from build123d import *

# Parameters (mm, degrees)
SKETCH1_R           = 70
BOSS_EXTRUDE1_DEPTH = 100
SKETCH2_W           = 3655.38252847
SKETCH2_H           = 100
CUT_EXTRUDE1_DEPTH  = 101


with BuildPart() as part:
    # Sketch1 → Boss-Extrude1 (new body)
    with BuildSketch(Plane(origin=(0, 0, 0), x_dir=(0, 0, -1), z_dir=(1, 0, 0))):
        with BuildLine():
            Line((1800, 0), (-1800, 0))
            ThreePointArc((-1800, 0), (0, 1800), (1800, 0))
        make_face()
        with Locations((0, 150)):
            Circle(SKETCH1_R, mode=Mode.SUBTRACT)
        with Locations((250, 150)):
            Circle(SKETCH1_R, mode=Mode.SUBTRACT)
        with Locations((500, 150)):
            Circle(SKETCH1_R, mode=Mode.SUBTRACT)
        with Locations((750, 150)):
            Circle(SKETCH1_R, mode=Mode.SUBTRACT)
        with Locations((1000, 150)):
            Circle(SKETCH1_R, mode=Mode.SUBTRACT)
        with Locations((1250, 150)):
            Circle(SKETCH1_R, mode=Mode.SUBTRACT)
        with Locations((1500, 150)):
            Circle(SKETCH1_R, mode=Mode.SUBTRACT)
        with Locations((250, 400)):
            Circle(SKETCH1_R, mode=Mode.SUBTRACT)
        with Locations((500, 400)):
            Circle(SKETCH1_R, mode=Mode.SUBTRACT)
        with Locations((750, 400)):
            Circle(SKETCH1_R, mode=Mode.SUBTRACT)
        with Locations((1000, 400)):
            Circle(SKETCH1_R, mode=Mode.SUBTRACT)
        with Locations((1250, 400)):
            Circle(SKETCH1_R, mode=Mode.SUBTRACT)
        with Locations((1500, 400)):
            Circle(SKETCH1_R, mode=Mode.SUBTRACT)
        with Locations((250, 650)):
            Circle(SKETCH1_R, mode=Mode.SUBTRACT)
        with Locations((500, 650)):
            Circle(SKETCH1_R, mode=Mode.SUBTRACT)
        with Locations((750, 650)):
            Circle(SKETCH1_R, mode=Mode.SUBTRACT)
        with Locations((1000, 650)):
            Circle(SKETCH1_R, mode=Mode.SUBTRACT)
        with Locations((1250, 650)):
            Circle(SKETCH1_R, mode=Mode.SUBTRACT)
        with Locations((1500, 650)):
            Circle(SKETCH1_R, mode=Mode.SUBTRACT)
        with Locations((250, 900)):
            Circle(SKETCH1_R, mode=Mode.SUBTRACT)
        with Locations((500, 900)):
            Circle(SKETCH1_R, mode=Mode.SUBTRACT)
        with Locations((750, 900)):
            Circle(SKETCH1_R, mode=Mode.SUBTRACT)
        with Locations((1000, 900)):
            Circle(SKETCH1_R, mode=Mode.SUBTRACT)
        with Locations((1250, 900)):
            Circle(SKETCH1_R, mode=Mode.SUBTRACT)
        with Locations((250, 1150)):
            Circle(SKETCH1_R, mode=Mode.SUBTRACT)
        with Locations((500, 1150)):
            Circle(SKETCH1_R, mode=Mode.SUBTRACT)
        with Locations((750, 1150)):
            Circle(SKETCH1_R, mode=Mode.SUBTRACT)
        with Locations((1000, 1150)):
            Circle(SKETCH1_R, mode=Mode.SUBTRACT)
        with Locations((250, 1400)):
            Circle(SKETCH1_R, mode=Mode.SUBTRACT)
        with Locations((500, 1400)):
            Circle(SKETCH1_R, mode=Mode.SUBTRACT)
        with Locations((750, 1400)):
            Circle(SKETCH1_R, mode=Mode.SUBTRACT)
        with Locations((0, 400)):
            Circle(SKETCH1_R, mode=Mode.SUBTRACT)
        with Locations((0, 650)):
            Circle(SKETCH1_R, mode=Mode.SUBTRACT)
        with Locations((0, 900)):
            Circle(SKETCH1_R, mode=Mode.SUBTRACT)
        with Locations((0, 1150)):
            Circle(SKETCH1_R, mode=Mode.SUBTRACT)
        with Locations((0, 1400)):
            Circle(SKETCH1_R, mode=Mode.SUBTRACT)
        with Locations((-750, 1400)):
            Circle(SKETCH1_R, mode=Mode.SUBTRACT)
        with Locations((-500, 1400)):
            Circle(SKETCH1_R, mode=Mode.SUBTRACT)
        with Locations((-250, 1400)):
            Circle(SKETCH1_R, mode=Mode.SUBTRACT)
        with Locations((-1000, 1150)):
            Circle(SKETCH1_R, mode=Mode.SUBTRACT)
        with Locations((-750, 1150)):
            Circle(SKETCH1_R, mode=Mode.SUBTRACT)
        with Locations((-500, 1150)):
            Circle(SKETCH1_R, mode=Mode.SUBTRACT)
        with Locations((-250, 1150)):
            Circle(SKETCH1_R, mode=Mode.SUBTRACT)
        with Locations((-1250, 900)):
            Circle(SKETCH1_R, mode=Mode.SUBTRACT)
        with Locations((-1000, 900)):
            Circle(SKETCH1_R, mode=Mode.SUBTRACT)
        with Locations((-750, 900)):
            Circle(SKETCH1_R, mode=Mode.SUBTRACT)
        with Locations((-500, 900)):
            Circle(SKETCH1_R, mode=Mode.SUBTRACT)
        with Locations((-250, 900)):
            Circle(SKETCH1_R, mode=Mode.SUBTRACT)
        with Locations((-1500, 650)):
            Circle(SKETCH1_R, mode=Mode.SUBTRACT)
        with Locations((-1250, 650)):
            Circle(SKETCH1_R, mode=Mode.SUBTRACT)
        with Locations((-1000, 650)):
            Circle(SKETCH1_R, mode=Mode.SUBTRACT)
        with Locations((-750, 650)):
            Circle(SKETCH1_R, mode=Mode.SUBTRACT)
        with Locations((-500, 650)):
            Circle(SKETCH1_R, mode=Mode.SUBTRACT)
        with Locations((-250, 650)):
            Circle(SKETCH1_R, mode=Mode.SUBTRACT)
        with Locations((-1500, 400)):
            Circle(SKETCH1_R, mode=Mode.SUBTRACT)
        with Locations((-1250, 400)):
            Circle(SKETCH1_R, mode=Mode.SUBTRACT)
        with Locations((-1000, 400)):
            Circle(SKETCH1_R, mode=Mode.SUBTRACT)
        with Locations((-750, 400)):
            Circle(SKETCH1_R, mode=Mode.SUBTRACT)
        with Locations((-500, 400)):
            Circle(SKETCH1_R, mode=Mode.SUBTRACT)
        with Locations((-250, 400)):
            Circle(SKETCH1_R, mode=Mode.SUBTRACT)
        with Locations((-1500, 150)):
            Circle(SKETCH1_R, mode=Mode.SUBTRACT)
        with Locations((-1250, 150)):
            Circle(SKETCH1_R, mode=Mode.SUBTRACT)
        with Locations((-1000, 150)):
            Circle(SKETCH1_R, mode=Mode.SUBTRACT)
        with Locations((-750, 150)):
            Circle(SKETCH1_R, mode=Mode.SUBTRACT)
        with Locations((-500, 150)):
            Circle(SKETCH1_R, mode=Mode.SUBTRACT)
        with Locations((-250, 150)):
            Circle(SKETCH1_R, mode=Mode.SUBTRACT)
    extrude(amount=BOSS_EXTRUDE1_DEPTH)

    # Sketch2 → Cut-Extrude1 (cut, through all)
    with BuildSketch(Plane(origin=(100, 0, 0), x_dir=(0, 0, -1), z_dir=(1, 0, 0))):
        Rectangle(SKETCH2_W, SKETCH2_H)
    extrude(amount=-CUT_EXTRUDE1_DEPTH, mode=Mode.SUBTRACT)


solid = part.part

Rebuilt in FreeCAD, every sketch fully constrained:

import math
import FreeCAD as App
import Part
import Sketcher
Q = App.Units.Quantity


def add_polygon(sketch, points):
    """Adds a closed chain of lines whose ends are joined by coincident constraints."""
    first, n = sketch.GeometryCount, len(points)
    for a, b in zip(points, points[1:] + points[:1]):
        sketch.addGeometry(Part.LineSegment(App.Vector(*a, 0), App.Vector(*b, 0)), False)
    for i in range(n):
        sketch.addConstraint(Sketcher.Constraint("Coincident", first + i, 2, first + (i + 1) % n, 1))

doc = App.newDocument("Part")
body = doc.addObject("PartDesign::Body", "Body")

sketch1 = body.newObject("Sketcher::SketchObject", "Sketch")
sketch1.AttachmentSupport = (doc.getObject("YZ_Plane"), [""])
sketch1.MapMode = "FlatFace"
sketch1.addGeometry(Part.LineSegment(App.Vector(0, 1800, 0), App.Vector(0, -1800, 0)), False)
sketch1.addGeometry(Part.ArcOfCircle(Part.Circle(App.Vector(0, 0, 0), App.Vector(0, 0, 1), 1800), math.radians(-90), math.radians(90)), False)
sketch1.addGeometry(Part.Circle(App.Vector(150, -1500, 0), App.Vector(0, 0, 1), 70), False)
sketch1.addGeometry(Part.Circle(App.Vector(150, -1250, 0), App.Vector(0, 0, 1), 70), False)
sketch1.addGeometry(Part.Circle(App.Vector(150, -1000, 0), App.Vector(0, 0, 1), 70), False)
sketch1.addGeometry(Part.Circle(App.Vector(400, -1500, 0), App.Vector(0, 0, 1), 70), False)
sketch1.addGeometry(Part.Circle(App.Vector(400, -1250, 0), App.Vector(0, 0, 1), 70), False)
sketch1.addGeometry(Part.Circle(App.Vector(400, -1000, 0), App.Vector(0, 0, 1), 70), False)
sketch1.addGeometry(Part.Circle(App.Vector(150, -750, 0), App.Vector(0, 0, 1), 70), False)
sketch1.addGeometry(Part.Circle(App.Vector(150, -500, 0), App.Vector(0, 0, 1), 70), False)
sketch1.addGeometry(Part.Circle(App.Vector(150, -250, 0), App.Vector(0, 0, 1), 70), False)
sketch1.addGeometry(Part.Circle(App.Vector(400, -750, 0), App.Vector(0, 0, 1), 70), False)
sketch1.addGeometry(Part.Circle(App.Vector(400, -500, 0), App.Vector(0, 0, 1), 70), False)
sketch1.addGeometry(Part.Circle(App.Vector(400, -250, 0), App.Vector(0, 0, 1), 70), False)
sketch1.addGeometry(Part.Circle(App.Vector(650, -1500, 0), App.Vector(0, 0, 1), 70), False)
sketch1.addGeometry(Part.Circle(App.Vector(650, -1250, 0), App.Vector(0, 0, 1), 70), False)
sketch1.addGeometry(Part.Circle(App.Vector(650, -1000, 0), App.Vector(0, 0, 1), 70), False)
sketch1.addGeometry(Part.Circle(App.Vector(650, -750, 0), App.Vector(0, 0, 1), 70), False)
sketch1.addGeometry(Part.Circle(App.Vector(650, -500, 0), App.Vector(0, 0, 1), 70), False)
sketch1.addGeometry(Part.Circle(App.Vector(650, -250, 0), App.Vector(0, 0, 1), 70), False)
sketch1.addGeometry(Part.Circle(App.Vector(150, 0, 0), App.Vector(0, 0, 1), 70), False)
sketch1.addGeometry(Part.Circle(App.Vector(150, 250, 0), App.Vector(0, 0, 1), 70), False)
sketch1.addGeometry(Part.Circle(App.Vector(150, 500, 0), App.Vector(0, 0, 1), 70), False)
sketch1.addGeometry(Part.Circle(App.Vector(150, 750, 0), App.Vector(0, 0, 1), 70), False)
sketch1.addGeometry(Part.Circle(App.Vector(400, 0, 0), App.Vector(0, 0, 1), 70), False)
sketch1.addGeometry(Part.Circle(App.Vector(400, 250, 0), App.Vector(0, 0, 1), 70), False)
sketch1.addGeometry(Part.Circle(App.Vector(400, 500, 0), App.Vector(0, 0, 1), 70), False)
sketch1.addGeometry(Part.Circle(App.Vector(400, 750, 0), App.Vector(0, 0, 1), 70), False)
sketch1.addGeometry(Part.Circle(App.Vector(150, 1000, 0), App.Vector(0, 0, 1), 70), False)
sketch1.addGeometry(Part.Circle(App.Vector(150, 1250, 0), App.Vector(0, 0, 1), 70), False)
sketch1.addGeometry(Part.Circle(App.Vector(150, 1500, 0), App.Vector(0, 0, 1), 70), False)
sketch1.addGeometry(Part.Circle(App.Vector(400, 1000, 0), App.Vector(0, 0, 1), 70), False)
sketch1.addGeometry(Part.Circle(App.Vector(400, 1250, 0), App.Vector(0, 0, 1), 70), False)
sketch1.addGeometry(Part.Circle(App.Vector(400, 1500, 0), App.Vector(0, 0, 1), 70), False)
sketch1.addGeometry(Part.Circle(App.Vector(650, 0, 0), App.Vector(0, 0, 1), 70), False)
sketch1.addGeometry(Part.Circle(App.Vector(650, 250, 0), App.Vector(0, 0, 1), 70), False)
sketch1.addGeometry(Part.Circle(App.Vector(650, 500, 0), App.Vector(0, 0, 1), 70), False)
sketch1.addGeometry(Part.Circle(App.Vector(650, 750, 0), App.Vector(0, 0, 1), 70), False)
sketch1.addGeometry(Part.Circle(App.Vector(650, 1000, 0), App.Vector(0, 0, 1), 70), False)
sketch1.addGeometry(Part.Circle(App.Vector(650, 1250, 0), App.Vector(0, 0, 1), 70), False)
sketch1.addGeometry(Part.Circle(App.Vector(650, 1500, 0), App.Vector(0, 0, 1), 70), False)
sketch1.addGeometry(Part.Circle(App.Vector(900, -1250, 0), App.Vector(0, 0, 1), 70), False)
sketch1.addGeometry(Part.Circle(App.Vector(900, -1000, 0), App.Vector(0, 0, 1), 70), False)
sketch1.addGeometry(Part.Circle(App.Vector(900, -750, 0), App.Vector(0, 0, 1), 70), False)
sketch1.addGeometry(Part.Circle(App.Vector(900, -500, 0), App.Vector(0, 0, 1), 70), False)
sketch1.addGeometry(Part.Circle(App.Vector(900, -250, 0), App.Vector(0, 0, 1), 70), False)
sketch1.addGeometry(Part.Circle(App.Vector(1150, -1000, 0), App.Vector(0, 0, 1), 70), False)
sketch1.addGeometry(Part.Circle(App.Vector(1150, -750, 0), App.Vector(0, 0, 1), 70), False)
sketch1.addGeometry(Part.Circle(App.Vector(1150, -500, 0), App.Vector(0, 0, 1), 70), False)
sketch1.addGeometry(Part.Circle(App.Vector(1150, -250, 0), App.Vector(0, 0, 1), 70), False)
sketch1.addGeometry(Part.Circle(App.Vector(1400, -750, 0), App.Vector(0, 0, 1), 70), False)
sketch1.addGeometry(Part.Circle(App.Vector(1400, -500, 0), App.Vector(0, 0, 1), 70), False)
sketch1.addGeometry(Part.Circle(App.Vector(1400, -250, 0), App.Vector(0, 0, 1), 70), False)
sketch1.addGeometry(Part.Circle(App.Vector(900, 0, 0), App.Vector(0, 0, 1), 70), False)
sketch1.addGeometry(Part.Circle(App.Vector(900, 250, 0), App.Vector(0, 0, 1), 70), False)
sketch1.addGeometry(Part.Circle(App.Vector(900, 500, 0), App.Vector(0, 0, 1), 70), False)
sketch1.addGeometry(Part.Circle(App.Vector(900, 750, 0), App.Vector(0, 0, 1), 70), False)
sketch1.addGeometry(Part.Circle(App.Vector(900, 1000, 0), App.Vector(0, 0, 1), 70), False)
sketch1.addGeometry(Part.Circle(App.Vector(900, 1250, 0), App.Vector(0, 0, 1), 70), False)
sketch1.addGeometry(Part.Circle(App.Vector(1150, 0, 0), App.Vector(0, 0, 1), 70), False)
sketch1.addGeometry(Part.Circle(App.Vector(1150, 250, 0), App.Vector(0, 0, 1), 70), False)
sketch1.addGeometry(Part.Circle(App.Vector(1150, 500, 0), App.Vector(0, 0, 1), 70), False)
sketch1.addGeometry(Part.Circle(App.Vector(1150, 750, 0), App.Vector(0, 0, 1), 70), False)
sketch1.addGeometry(Part.Circle(App.Vector(1400, 0, 0), App.Vector(0, 0, 1), 70), False)
sketch1.addGeometry(Part.Circle(App.Vector(1400, 250, 0), App.Vector(0, 0, 1), 70), False)
sketch1.addGeometry(Part.Circle(App.Vector(1400, 500, 0), App.Vector(0, 0, 1), 70), False)
sketch1.addGeometry(Part.Circle(App.Vector(1400, 750, 0), App.Vector(0, 0, 1), 70), False)
sketch1.addGeometry(Part.Circle(App.Vector(1150, 1000, 0), App.Vector(0, 0, 1), 70), False)
sketch1.addConstraint(Sketcher.Constraint("Coincident", 0, 1, 1, 2))
sketch1.addConstraint(Sketcher.Constraint("Coincident", 1, 1, 0, 2))
sketch1.addConstraint(Sketcher.Constraint("Vertical", 0))
sketch1.addConstraint(Sketcher.Constraint("Coincident", 1, 3, -1, 1))
sketch1.addConstraint(Sketcher.Constraint("Equal", 2, 3))
sketch1.addConstraint(Sketcher.Constraint("Equal", 3, 4))
sketch1.addConstraint(Sketcher.Constraint("Equal", 4, 5))
sketch1.addConstraint(Sketcher.Constraint("Equal", 5, 6))
sketch1.addConstraint(Sketcher.Constraint("Equal", 6, 7))
sketch1.addConstraint(Sketcher.Constraint("Equal", 7, 8))
sketch1.addConstraint(Sketcher.Constraint("Equal", 8, 9))
sketch1.addConstraint(Sketcher.Constraint("Equal", 9, 10))
sketch1.addConstraint(Sketcher.Constraint("Equal", 10, 11))
sketch1.addConstraint(Sketcher.Constraint("Equal", 11, 12))
sketch1.addConstraint(Sketcher.Constraint("Equal", 12, 13))
sketch1.addConstraint(Sketcher.Constraint("Equal", 13, 14))
sketch1.addConstraint(Sketcher.Constraint("Equal", 14, 15))
sketch1.addConstraint(Sketcher.Constraint("Equal", 15, 16))
sketch1.addConstraint(Sketcher.Constraint("Equal", 16, 17))
sketch1.addConstraint(Sketcher.Constraint("Equal", 17, 18))
sketch1.addConstraint(Sketcher.Constraint("Equal", 18, 19))
sketch1.addConstraint(Sketcher.Constraint("Equal", 19, 20))
sketch1.addConstraint(Sketcher.Constraint("Equal", 20, 21))
sketch1.addConstraint(Sketcher.Constraint("Equal", 21, 22))
sketch1.addConstraint(Sketcher.Constraint("Equal", 22, 23))
sketch1.addConstraint(Sketcher.Constraint("Equal", 23, 24))
sketch1.addConstraint(Sketcher.Constraint("Equal", 24, 25))
sketch1.addConstraint(Sketcher.Constraint("Equal", 25, 26))
sketch1.addConstraint(Sketcher.Constraint("Equal", 26, 27))
sketch1.addConstraint(Sketcher.Constraint("Equal", 27, 28))
sketch1.addConstraint(Sketcher.Constraint("Equal", 28, 29))
sketch1.addConstraint(Sketcher.Constraint("Equal", 29, 30))
sketch1.addConstraint(Sketcher.Constraint("Equal", 30, 31))
sketch1.addConstraint(Sketcher.Constraint("Equal", 31, 32))
sketch1.addConstraint(Sketcher.Constraint("Equal", 32, 33))
sketch1.addConstraint(Sketcher.Constraint("Equal", 33, 34))
sketch1.addConstraint(Sketcher.Constraint("Equal", 34, 35))
sketch1.addConstraint(Sketcher.Constraint("Equal", 35, 36))
sketch1.addConstraint(Sketcher.Constraint("Equal", 36, 37))
sketch1.addConstraint(Sketcher.Constraint("Equal", 37, 38))
sketch1.addConstraint(Sketcher.Constraint("Equal", 38, 39))
sketch1.addConstraint(Sketcher.Constraint("Equal", 39, 40))
sketch1.addConstraint(Sketcher.Constraint("Equal", 40, 41))
sketch1.addConstraint(Sketcher.Constraint("Equal", 41, 42))
sketch1.addConstraint(Sketcher.Constraint("Equal", 42, 43))
sketch1.addConstraint(Sketcher.Constraint("Equal", 43, 44))
sketch1.addConstraint(Sketcher.Constraint("Equal", 44, 45))
sketch1.addConstraint(Sketcher.Constraint("Equal", 45, 46))
sketch1.addConstraint(Sketcher.Constraint("Equal", 46, 47))
sketch1.addConstraint(Sketcher.Constraint("Equal", 47, 48))
sketch1.addConstraint(Sketcher.Constraint("Equal", 48, 49))
sketch1.addConstraint(Sketcher.Constraint("Equal", 49, 50))
sketch1.addConstraint(Sketcher.Constraint("Equal", 50, 51))
sketch1.addConstraint(Sketcher.Constraint("Equal", 51, 52))
sketch1.addConstraint(Sketcher.Constraint("Equal", 52, 53))
sketch1.addConstraint(Sketcher.Constraint("Equal", 53, 54))
sketch1.addConstraint(Sketcher.Constraint("Equal", 54, 55))
sketch1.addConstraint(Sketcher.Constraint("Equal", 55, 56))
sketch1.addConstraint(Sketcher.Constraint("Equal", 56, 57))
sketch1.addConstraint(Sketcher.Constraint("Equal", 57, 58))
sketch1.addConstraint(Sketcher.Constraint("Equal", 58, 59))
sketch1.addConstraint(Sketcher.Constraint("Equal", 59, 60))
sketch1.addConstraint(Sketcher.Constraint("Equal", 60, 61))
sketch1.addConstraint(Sketcher.Constraint("Equal", 61, 62))
sketch1.addConstraint(Sketcher.Constraint("Equal", 62, 63))
sketch1.addConstraint(Sketcher.Constraint("Equal", 63, 64))
sketch1.addConstraint(Sketcher.Constraint("Equal", 64, 65))
sketch1.addConstraint(Sketcher.Constraint("Equal", 65, 66))
sketch1.addConstraint(Sketcher.Constraint("Equal", 66, 67))
sketch1.addConstraint(Sketcher.Constraint("Symmetric", 10, 3, 21, 3, -1))
sketch1.addConstraint(Sketcher.Constraint("Symmetric", 9, 3, 22, 3, -1))
sketch1.addConstraint(Sketcher.Constraint("Symmetric", 8, 3, 23, 3, -1))
sketch1.addConstraint(Sketcher.Constraint("Symmetric", 13, 3, 25, 3, -1))
sketch1.addConstraint(Sketcher.Constraint("Symmetric", 12, 3, 26, 3, -1))
sketch1.addConstraint(Sketcher.Constraint("Symmetric", 11, 3, 27, 3, -1))
sketch1.addConstraint(Sketcher.Constraint("Symmetric", 4, 3, 28, 3, -1))
sketch1.addConstraint(Sketcher.Constraint("Symmetric", 3, 3, 29, 3, -1))
sketch1.addConstraint(Sketcher.Constraint("Symmetric", 2, 3, 30, 3, -1))
sketch1.addConstraint(Sketcher.Constraint("Symmetric", 7, 3, 31, 3, -1))
sketch1.addConstraint(Sketcher.Constraint("Symmetric", 6, 3, 32, 3, -1))
sketch1.addConstraint(Sketcher.Constraint("Symmetric", 5, 3, 33, 3, -1))
sketch1.addConstraint(Sketcher.Constraint("Symmetric", 19, 3, 35, 3, -1))
sketch1.addConstraint(Sketcher.Constraint("Symmetric", 18, 3, 36, 3, -1))
sketch1.addConstraint(Sketcher.Constraint("Symmetric", 17, 3, 37, 3, -1))
sketch1.addConstraint(Sketcher.Constraint("Symmetric", 16, 3, 38, 3, -1))
sketch1.addConstraint(Sketcher.Constraint("Symmetric", 15, 3, 39, 3, -1))
sketch1.addConstraint(Sketcher.Constraint("Symmetric", 14, 3, 40, 3, -1))
sketch1.addConstraint(Sketcher.Constraint("Symmetric", 45, 3, 54, 3, -1))
sketch1.addConstraint(Sketcher.Constraint("Symmetric", 44, 3, 55, 3, -1))
sketch1.addConstraint(Sketcher.Constraint("Symmetric", 43, 3, 56, 3, -1))
sketch1.addConstraint(Sketcher.Constraint("Symmetric", 42, 3, 57, 3, -1))
sketch1.addConstraint(Sketcher.Constraint("Symmetric", 41, 3, 58, 3, -1))
sketch1.addConstraint(Sketcher.Constraint("Symmetric", 49, 3, 60, 3, -1))
sketch1.addConstraint(Sketcher.Constraint("Symmetric", 48, 3, 61, 3, -1))
sketch1.addConstraint(Sketcher.Constraint("Symmetric", 47, 3, 62, 3, -1))
sketch1.addConstraint(Sketcher.Constraint("Symmetric", 52, 3, 64, 3, -1))
sketch1.addConstraint(Sketcher.Constraint("Symmetric", 51, 3, 65, 3, -1))
sketch1.addConstraint(Sketcher.Constraint("Symmetric", 50, 3, 66, 3, -1))
sketch1.addConstraint(Sketcher.Constraint("Symmetric", 46, 3, 67, 3, -1))
sketch1.addConstraint(Sketcher.Constraint("PointOnObject", 20, 3, -1))
sketch1.addConstraint(Sketcher.Constraint("PointOnObject", 24, 3, -1))
sketch1.addConstraint(Sketcher.Constraint("PointOnObject", 34, 3, -1))
sketch1.addConstraint(Sketcher.Constraint("PointOnObject", 53, 3, -1))
sketch1.addConstraint(Sketcher.Constraint("PointOnObject", 59, 3, -1))
sketch1.addConstraint(Sketcher.Constraint("PointOnObject", 63, 3, -1))
sketch1.addConstraint(Sketcher.Constraint("PointOnObject", 0, 1, -2))
sketch1.addConstraint(Sketcher.Constraint("Horizontal", 2, 3, 5, 3))
sketch1.addConstraint(Sketcher.Constraint("Horizontal", 3, 3, 6, 3))
sketch1.addConstraint(Sketcher.Constraint("Horizontal", 4, 3, 7, 3))
sketch1.addConstraint(Sketcher.Constraint("Horizontal", 8, 3, 11, 3))
sketch1.addConstraint(Sketcher.Constraint("Horizontal", 9, 3, 12, 3))
sketch1.addConstraint(Sketcher.Constraint("Horizontal", 10, 3, 13, 3))
sketch1.addConstraint(Sketcher.Constraint("Horizontal", 5, 3, 14, 3))
sketch1.addConstraint(Sketcher.Constraint("Horizontal", 6, 3, 15, 3))
sketch1.addConstraint(Sketcher.Constraint("Horizontal", 7, 3, 16, 3))
sketch1.addConstraint(Sketcher.Constraint("Horizontal", 11, 3, 17, 3))
sketch1.addConstraint(Sketcher.Constraint("Horizontal", 12, 3, 18, 3))
sketch1.addConstraint(Sketcher.Constraint("Horizontal", 13, 3, 19, 3))
sketch1.addConstraint(Sketcher.Constraint("Horizontal", 15, 3, 41, 3))
sketch1.addConstraint(Sketcher.Constraint("Horizontal", 16, 3, 42, 3))
sketch1.addConstraint(Sketcher.Constraint("Horizontal", 17, 3, 43, 3))
sketch1.addConstraint(Sketcher.Constraint("Horizontal", 18, 3, 44, 3))
sketch1.addConstraint(Sketcher.Constraint("Horizontal", 19, 3, 45, 3))
sketch1.addConstraint(Sketcher.Constraint("Horizontal", 42, 3, 46, 3))
sketch1.addConstraint(Sketcher.Constraint("Horizontal", 43, 3, 47, 3))
sketch1.addConstraint(Sketcher.Constraint("Horizontal", 44, 3, 48, 3))
sketch1.addConstraint(Sketcher.Constraint("Horizontal", 45, 3, 49, 3))
sketch1.addConstraint(Sketcher.Constraint("Horizontal", 47, 3, 50, 3))
sketch1.addConstraint(Sketcher.Constraint("Horizontal", 48, 3, 51, 3))
sketch1.addConstraint(Sketcher.Constraint("Horizontal", 49, 3, 52, 3))
sketch1.addConstraint(Sketcher.Constraint("Vertical", 2, 3, 3, 3))
sketch1.addConstraint(Sketcher.Constraint("Vertical", 3, 3, 4, 3))
sketch1.addConstraint(Sketcher.Constraint("Vertical", 5, 3, 6, 3))
sketch1.addConstraint(Sketcher.Constraint("Vertical", 6, 3, 7, 3))
sketch1.addConstraint(Sketcher.Constraint("Vertical", 4, 3, 8, 3))
sketch1.addConstraint(Sketcher.Constraint("Vertical", 8, 3, 9, 3))
sketch1.addConstraint(Sketcher.Constraint("Vertical", 9, 3, 10, 3))
sketch1.addConstraint(Sketcher.Constraint("Vertical", 7, 3, 11, 3))
sketch1.addConstraint(Sketcher.Constraint("Vertical", 11, 3, 12, 3))
sketch1.addConstraint(Sketcher.Constraint("Vertical", 12, 3, 13, 3))
sketch1.addConstraint(Sketcher.Constraint("Vertical", 14, 3, 15, 3))
sketch1.addConstraint(Sketcher.Constraint("Vertical", 15, 3, 16, 3))
sketch1.addConstraint(Sketcher.Constraint("Vertical", 16, 3, 17, 3))
sketch1.addConstraint(Sketcher.Constraint("Vertical", 17, 3, 18, 3))
sketch1.addConstraint(Sketcher.Constraint("Vertical", 18, 3, 19, 3))
sketch1.addConstraint(Sketcher.Constraint("Vertical", 10, 3, 20, 3))
sketch1.addConstraint(Sketcher.Constraint("Vertical", 13, 3, 24, 3))
sketch1.addConstraint(Sketcher.Constraint("Vertical", 19, 3, 34, 3))
sketch1.addConstraint(Sketcher.Constraint("Vertical", 41, 3, 42, 3))
sketch1.addConstraint(Sketcher.Constraint("Vertical", 42, 3, 43, 3))
sketch1.addConstraint(Sketcher.Constraint("Vertical", 43, 3, 44, 3))
sketch1.addConstraint(Sketcher.Constraint("Vertical", 44, 3, 45, 3))
sketch1.addConstraint(Sketcher.Constraint("Vertical", 46, 3, 47, 3))
sketch1.addConstraint(Sketcher.Constraint("Vertical", 47, 3, 48, 3))
sketch1.addConstraint(Sketcher.Constraint("Vertical", 48, 3, 49, 3))
sketch1.addConstraint(Sketcher.Constraint("Vertical", 50, 3, 51, 3))
sketch1.addConstraint(Sketcher.Constraint("Vertical", 51, 3, 52, 3))
sketch1.addConstraint(Sketcher.Constraint("Vertical", 45, 3, 53, 3))
sketch1.addConstraint(Sketcher.Constraint("Vertical", 49, 3, 59, 3))
sketch1.addConstraint(Sketcher.Constraint("Vertical", 52, 3, 63, 3))
sketch1.addConstraint(Sketcher.Constraint("Diameter", 2, Q("140 mm")))
sketch1.addConstraint(Sketcher.Constraint("Radius", 1, Q("1800 mm")))
sketch1.addConstraint(Sketcher.Constraint("DistanceX", -1, 1, 2, 3, Q("150 mm")))
sketch1.addConstraint(Sketcher.Constraint("DistanceY", 2, 3, -1, 1, Q("1500 mm")))
sketch1.addConstraint(Sketcher.Constraint("DistanceY", 3, 3, -1, 1, Q("1250 mm")))
sketch1.addConstraint(Sketcher.Constraint("DistanceY", 4, 3, -1, 1, Q("1000 mm")))
sketch1.addConstraint(Sketcher.Constraint("DistanceX", -1, 1, 5, 3, Q("400 mm")))
sketch1.addConstraint(Sketcher.Constraint("DistanceY", 8, 3, -1, 1, Q("750 mm")))
sketch1.addConstraint(Sketcher.Constraint("DistanceY", 9, 3, -1, 1, Q("500 mm")))
sketch1.addConstraint(Sketcher.Constraint("DistanceY", 10, 3, -1, 1, Q("250 mm")))
sketch1.addConstraint(Sketcher.Constraint("DistanceX", -1, 1, 14, 3, Q("650 mm")))
sketch1.addConstraint(Sketcher.Constraint("DistanceX", -1, 1, 41, 3, Q("900 mm")))
sketch1.addConstraint(Sketcher.Constraint("DistanceX", -1, 1, 46, 3, Q("1150 mm")))
sketch1.addConstraint(Sketcher.Constraint("DistanceX", -1, 1, 50, 3, Q("1400 mm")))
pad1 = body.newObject("PartDesign::Pad", "Pad")
pad1.Profile = sketch1
pad1.Length = 100

sketch2 = body.newObject("Sketcher::SketchObject", "Sketch001")
sketch2.AttachmentSupport = (doc.getObject("YZ_Plane"), [""])
sketch2.MapMode = "FlatFace"
sketch2.AttachmentOffset = App.Placement(App.Vector(0, 0, 100), App.Rotation())
add_polygon(sketch2, [(50, 1828), (-50, 1828), (-50, -1828), (50, -1828)])
sketch2.addConstraint(Sketcher.Constraint("Horizontal", 0))
sketch2.addConstraint(Sketcher.Constraint("Vertical", 1))
sketch2.addConstraint(Sketcher.Constraint("Horizontal", 2))
sketch2.addConstraint(Sketcher.Constraint("Vertical", 3))
sketch2.addConstraint(Sketcher.Constraint("Symmetric", 0, 2, 2, 2, -1, 1))
sketch2.addConstraint(Sketcher.Constraint("DistanceX", 0, 2, 0, 1, Q("100 mm")))
sketch2.addConstraint(Sketcher.Constraint("DistanceY", 1, 2, 1, 1, Q("3655.382528 mm")))
pocket1 = body.newObject("PartDesign::Pocket", "Pocket")
pocket1.Profile = sketch2
pocket1.Type = "ThroughAll"

doc.recompute()
